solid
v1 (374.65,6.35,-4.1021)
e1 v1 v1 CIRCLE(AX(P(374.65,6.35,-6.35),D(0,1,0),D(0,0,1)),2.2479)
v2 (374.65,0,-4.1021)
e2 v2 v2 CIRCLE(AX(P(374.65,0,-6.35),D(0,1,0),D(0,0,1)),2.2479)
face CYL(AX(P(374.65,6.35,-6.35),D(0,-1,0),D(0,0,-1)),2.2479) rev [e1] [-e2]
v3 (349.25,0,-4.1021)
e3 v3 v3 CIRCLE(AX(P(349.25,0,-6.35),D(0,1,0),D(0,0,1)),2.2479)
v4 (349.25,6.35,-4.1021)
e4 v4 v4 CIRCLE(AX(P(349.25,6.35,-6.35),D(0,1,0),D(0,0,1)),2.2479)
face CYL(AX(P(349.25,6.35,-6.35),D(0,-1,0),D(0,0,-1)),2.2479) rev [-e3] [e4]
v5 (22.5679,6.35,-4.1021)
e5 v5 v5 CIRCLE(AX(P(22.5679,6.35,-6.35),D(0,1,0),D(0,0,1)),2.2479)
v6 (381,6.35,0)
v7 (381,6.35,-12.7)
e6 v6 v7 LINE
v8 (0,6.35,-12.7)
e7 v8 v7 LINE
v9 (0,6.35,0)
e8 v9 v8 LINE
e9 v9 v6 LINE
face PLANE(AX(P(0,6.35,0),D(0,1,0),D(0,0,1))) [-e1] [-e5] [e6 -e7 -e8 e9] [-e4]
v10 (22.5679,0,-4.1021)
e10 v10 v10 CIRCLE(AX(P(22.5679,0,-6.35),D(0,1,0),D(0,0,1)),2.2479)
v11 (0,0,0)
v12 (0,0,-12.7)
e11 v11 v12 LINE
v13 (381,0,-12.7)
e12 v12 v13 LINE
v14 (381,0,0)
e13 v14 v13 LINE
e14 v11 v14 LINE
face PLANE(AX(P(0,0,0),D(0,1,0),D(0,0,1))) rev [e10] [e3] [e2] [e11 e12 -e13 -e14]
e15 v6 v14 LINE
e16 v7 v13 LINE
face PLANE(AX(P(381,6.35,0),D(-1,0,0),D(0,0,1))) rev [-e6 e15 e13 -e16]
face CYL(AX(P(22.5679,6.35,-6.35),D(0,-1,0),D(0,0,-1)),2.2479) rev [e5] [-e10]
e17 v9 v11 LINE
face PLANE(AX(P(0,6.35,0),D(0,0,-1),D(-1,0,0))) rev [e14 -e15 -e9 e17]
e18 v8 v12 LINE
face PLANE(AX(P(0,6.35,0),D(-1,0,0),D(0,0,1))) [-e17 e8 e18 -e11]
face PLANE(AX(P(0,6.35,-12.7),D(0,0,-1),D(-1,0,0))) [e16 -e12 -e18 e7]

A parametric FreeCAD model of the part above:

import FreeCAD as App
import Part
import Sketcher
from FreeCAD import Vector
Q = App.Units.Quantity


def add_polygon(sketch, points):
    """Adds a closed chain of lines whose ends are joined by coincident constraints."""
    first, n = sketch.GeometryCount, len(points)
    for a, b in zip(points, points[1:] + points[:1]):
        sketch.addGeometry(Part.LineSegment(App.Vector(*a, 0), App.Vector(*b, 0)), False)
    for i in range(n):
        sketch.addConstraint(Sketcher.Constraint("Coincident", first + i, 2, first + (i + 1) % n, 1))

doc = App.newDocument("Part")
params = doc.addObject("Spreadsheet::Sheet", "Params")
for row, (alias, value) in enumerate([
    ("sketch1_width", "15 in"),
    ("sketch1_diameter", "0.177 in"),
    ("sketch1_height", "0.5 in"),
    ("pad1_length", "0.25 in"),
], start=1):
    params.set(f"A{row}", alias)
    params.set(f"B{row}", "=" + value)
    params.setAlias(f"B{row}", alias)

body = doc.addObject("PartDesign::Body", "Body")

sketch1 = doc.addObject("Sketcher::SketchObject", "Sketch")
body.addObject(sketch1)
sketch1.AttachmentSupport = (doc.XZ_Plane, [""])
sketch1.MapMode = "FlatFace"
add_polygon(sketch1, [(0, -12.7), (0, 0), (381, 0), (381, -12.7)])
sketch1.addGeometry(Part.Circle(Vector(22.6, -6.3, 0), Vector(0, 0, 1), 2.2), False)
sketch1.addGeometry(Part.Circle(Vector(349.2, -6.3, 0), Vector(0, 0, 1), 2.2), False)
sketch1.addGeometry(Part.Circle(Vector(374.6, -6.3, 0), Vector(0, 0, 1), 2.2), False)
sketch1.addConstraint(Sketcher.Constraint("Vertical", 0))
sketch1.addConstraint(Sketcher.Constraint("Horizontal", 1))
sketch1.addConstraint(Sketcher.Constraint("Vertical", 2))
sketch1.addConstraint(Sketcher.Constraint("Horizontal", 3))
sketch1.addConstraint(Sketcher.Constraint("Coincident", 0, 2, -1, 1))
sketch1.addConstraint(Sketcher.Constraint("Equal", 4, 5))
sketch1.addConstraint(Sketcher.Constraint("Equal", 5, 6))
sketch1.addConstraint(Sketcher.Constraint("Horizontal", 4, 3, 5, 3))
sketch1.addConstraint(Sketcher.Constraint("Horizontal", 5, 3, 6, 3))
sketch1.addConstraint(Sketcher.Constraint("DistanceX", 1, 1, 1, 2, Q("15 in")))
sketch1.addConstraint(Sketcher.Constraint("Diameter", 4, Q("0.177 in")))
sketch1.addConstraint(Sketcher.Constraint("DistanceY", 0, 1, 0, 2, Q("0.5 in")))
sketch1.addConstraint(Sketcher.Constraint("DistanceX", 5, 3, 6, 3, Q("1 in")))
sketch1.addConstraint(Sketcher.Constraint("DistanceY", 4, 3, -1, 1, Q("0.25 in")))
sketch1.addConstraint(Sketcher.Constraint("DistanceX", -1, 1, 5, 3, Q("13.75 in")))
sketch1.addConstraint(Sketcher.Constraint("DistanceX", -1, 1, 4, 3, Q("0.8885 in")))
sketch1.setExpression("Constraints[13]", "Params.sketch1_width")
sketch1.setExpression("Constraints[14]", "Params.sketch1_diameter")
sketch1.setExpression("Constraints[15]", "Params.sketch1_height")
pad1 = doc.addObject("PartDesign::Pad", "Pad")
body.addObject(pad1)
pad1.Profile = sketch1
pad1.setExpression("Length", "Params.pad1_length")
pad1.Reversed = True

doc.recompute()
